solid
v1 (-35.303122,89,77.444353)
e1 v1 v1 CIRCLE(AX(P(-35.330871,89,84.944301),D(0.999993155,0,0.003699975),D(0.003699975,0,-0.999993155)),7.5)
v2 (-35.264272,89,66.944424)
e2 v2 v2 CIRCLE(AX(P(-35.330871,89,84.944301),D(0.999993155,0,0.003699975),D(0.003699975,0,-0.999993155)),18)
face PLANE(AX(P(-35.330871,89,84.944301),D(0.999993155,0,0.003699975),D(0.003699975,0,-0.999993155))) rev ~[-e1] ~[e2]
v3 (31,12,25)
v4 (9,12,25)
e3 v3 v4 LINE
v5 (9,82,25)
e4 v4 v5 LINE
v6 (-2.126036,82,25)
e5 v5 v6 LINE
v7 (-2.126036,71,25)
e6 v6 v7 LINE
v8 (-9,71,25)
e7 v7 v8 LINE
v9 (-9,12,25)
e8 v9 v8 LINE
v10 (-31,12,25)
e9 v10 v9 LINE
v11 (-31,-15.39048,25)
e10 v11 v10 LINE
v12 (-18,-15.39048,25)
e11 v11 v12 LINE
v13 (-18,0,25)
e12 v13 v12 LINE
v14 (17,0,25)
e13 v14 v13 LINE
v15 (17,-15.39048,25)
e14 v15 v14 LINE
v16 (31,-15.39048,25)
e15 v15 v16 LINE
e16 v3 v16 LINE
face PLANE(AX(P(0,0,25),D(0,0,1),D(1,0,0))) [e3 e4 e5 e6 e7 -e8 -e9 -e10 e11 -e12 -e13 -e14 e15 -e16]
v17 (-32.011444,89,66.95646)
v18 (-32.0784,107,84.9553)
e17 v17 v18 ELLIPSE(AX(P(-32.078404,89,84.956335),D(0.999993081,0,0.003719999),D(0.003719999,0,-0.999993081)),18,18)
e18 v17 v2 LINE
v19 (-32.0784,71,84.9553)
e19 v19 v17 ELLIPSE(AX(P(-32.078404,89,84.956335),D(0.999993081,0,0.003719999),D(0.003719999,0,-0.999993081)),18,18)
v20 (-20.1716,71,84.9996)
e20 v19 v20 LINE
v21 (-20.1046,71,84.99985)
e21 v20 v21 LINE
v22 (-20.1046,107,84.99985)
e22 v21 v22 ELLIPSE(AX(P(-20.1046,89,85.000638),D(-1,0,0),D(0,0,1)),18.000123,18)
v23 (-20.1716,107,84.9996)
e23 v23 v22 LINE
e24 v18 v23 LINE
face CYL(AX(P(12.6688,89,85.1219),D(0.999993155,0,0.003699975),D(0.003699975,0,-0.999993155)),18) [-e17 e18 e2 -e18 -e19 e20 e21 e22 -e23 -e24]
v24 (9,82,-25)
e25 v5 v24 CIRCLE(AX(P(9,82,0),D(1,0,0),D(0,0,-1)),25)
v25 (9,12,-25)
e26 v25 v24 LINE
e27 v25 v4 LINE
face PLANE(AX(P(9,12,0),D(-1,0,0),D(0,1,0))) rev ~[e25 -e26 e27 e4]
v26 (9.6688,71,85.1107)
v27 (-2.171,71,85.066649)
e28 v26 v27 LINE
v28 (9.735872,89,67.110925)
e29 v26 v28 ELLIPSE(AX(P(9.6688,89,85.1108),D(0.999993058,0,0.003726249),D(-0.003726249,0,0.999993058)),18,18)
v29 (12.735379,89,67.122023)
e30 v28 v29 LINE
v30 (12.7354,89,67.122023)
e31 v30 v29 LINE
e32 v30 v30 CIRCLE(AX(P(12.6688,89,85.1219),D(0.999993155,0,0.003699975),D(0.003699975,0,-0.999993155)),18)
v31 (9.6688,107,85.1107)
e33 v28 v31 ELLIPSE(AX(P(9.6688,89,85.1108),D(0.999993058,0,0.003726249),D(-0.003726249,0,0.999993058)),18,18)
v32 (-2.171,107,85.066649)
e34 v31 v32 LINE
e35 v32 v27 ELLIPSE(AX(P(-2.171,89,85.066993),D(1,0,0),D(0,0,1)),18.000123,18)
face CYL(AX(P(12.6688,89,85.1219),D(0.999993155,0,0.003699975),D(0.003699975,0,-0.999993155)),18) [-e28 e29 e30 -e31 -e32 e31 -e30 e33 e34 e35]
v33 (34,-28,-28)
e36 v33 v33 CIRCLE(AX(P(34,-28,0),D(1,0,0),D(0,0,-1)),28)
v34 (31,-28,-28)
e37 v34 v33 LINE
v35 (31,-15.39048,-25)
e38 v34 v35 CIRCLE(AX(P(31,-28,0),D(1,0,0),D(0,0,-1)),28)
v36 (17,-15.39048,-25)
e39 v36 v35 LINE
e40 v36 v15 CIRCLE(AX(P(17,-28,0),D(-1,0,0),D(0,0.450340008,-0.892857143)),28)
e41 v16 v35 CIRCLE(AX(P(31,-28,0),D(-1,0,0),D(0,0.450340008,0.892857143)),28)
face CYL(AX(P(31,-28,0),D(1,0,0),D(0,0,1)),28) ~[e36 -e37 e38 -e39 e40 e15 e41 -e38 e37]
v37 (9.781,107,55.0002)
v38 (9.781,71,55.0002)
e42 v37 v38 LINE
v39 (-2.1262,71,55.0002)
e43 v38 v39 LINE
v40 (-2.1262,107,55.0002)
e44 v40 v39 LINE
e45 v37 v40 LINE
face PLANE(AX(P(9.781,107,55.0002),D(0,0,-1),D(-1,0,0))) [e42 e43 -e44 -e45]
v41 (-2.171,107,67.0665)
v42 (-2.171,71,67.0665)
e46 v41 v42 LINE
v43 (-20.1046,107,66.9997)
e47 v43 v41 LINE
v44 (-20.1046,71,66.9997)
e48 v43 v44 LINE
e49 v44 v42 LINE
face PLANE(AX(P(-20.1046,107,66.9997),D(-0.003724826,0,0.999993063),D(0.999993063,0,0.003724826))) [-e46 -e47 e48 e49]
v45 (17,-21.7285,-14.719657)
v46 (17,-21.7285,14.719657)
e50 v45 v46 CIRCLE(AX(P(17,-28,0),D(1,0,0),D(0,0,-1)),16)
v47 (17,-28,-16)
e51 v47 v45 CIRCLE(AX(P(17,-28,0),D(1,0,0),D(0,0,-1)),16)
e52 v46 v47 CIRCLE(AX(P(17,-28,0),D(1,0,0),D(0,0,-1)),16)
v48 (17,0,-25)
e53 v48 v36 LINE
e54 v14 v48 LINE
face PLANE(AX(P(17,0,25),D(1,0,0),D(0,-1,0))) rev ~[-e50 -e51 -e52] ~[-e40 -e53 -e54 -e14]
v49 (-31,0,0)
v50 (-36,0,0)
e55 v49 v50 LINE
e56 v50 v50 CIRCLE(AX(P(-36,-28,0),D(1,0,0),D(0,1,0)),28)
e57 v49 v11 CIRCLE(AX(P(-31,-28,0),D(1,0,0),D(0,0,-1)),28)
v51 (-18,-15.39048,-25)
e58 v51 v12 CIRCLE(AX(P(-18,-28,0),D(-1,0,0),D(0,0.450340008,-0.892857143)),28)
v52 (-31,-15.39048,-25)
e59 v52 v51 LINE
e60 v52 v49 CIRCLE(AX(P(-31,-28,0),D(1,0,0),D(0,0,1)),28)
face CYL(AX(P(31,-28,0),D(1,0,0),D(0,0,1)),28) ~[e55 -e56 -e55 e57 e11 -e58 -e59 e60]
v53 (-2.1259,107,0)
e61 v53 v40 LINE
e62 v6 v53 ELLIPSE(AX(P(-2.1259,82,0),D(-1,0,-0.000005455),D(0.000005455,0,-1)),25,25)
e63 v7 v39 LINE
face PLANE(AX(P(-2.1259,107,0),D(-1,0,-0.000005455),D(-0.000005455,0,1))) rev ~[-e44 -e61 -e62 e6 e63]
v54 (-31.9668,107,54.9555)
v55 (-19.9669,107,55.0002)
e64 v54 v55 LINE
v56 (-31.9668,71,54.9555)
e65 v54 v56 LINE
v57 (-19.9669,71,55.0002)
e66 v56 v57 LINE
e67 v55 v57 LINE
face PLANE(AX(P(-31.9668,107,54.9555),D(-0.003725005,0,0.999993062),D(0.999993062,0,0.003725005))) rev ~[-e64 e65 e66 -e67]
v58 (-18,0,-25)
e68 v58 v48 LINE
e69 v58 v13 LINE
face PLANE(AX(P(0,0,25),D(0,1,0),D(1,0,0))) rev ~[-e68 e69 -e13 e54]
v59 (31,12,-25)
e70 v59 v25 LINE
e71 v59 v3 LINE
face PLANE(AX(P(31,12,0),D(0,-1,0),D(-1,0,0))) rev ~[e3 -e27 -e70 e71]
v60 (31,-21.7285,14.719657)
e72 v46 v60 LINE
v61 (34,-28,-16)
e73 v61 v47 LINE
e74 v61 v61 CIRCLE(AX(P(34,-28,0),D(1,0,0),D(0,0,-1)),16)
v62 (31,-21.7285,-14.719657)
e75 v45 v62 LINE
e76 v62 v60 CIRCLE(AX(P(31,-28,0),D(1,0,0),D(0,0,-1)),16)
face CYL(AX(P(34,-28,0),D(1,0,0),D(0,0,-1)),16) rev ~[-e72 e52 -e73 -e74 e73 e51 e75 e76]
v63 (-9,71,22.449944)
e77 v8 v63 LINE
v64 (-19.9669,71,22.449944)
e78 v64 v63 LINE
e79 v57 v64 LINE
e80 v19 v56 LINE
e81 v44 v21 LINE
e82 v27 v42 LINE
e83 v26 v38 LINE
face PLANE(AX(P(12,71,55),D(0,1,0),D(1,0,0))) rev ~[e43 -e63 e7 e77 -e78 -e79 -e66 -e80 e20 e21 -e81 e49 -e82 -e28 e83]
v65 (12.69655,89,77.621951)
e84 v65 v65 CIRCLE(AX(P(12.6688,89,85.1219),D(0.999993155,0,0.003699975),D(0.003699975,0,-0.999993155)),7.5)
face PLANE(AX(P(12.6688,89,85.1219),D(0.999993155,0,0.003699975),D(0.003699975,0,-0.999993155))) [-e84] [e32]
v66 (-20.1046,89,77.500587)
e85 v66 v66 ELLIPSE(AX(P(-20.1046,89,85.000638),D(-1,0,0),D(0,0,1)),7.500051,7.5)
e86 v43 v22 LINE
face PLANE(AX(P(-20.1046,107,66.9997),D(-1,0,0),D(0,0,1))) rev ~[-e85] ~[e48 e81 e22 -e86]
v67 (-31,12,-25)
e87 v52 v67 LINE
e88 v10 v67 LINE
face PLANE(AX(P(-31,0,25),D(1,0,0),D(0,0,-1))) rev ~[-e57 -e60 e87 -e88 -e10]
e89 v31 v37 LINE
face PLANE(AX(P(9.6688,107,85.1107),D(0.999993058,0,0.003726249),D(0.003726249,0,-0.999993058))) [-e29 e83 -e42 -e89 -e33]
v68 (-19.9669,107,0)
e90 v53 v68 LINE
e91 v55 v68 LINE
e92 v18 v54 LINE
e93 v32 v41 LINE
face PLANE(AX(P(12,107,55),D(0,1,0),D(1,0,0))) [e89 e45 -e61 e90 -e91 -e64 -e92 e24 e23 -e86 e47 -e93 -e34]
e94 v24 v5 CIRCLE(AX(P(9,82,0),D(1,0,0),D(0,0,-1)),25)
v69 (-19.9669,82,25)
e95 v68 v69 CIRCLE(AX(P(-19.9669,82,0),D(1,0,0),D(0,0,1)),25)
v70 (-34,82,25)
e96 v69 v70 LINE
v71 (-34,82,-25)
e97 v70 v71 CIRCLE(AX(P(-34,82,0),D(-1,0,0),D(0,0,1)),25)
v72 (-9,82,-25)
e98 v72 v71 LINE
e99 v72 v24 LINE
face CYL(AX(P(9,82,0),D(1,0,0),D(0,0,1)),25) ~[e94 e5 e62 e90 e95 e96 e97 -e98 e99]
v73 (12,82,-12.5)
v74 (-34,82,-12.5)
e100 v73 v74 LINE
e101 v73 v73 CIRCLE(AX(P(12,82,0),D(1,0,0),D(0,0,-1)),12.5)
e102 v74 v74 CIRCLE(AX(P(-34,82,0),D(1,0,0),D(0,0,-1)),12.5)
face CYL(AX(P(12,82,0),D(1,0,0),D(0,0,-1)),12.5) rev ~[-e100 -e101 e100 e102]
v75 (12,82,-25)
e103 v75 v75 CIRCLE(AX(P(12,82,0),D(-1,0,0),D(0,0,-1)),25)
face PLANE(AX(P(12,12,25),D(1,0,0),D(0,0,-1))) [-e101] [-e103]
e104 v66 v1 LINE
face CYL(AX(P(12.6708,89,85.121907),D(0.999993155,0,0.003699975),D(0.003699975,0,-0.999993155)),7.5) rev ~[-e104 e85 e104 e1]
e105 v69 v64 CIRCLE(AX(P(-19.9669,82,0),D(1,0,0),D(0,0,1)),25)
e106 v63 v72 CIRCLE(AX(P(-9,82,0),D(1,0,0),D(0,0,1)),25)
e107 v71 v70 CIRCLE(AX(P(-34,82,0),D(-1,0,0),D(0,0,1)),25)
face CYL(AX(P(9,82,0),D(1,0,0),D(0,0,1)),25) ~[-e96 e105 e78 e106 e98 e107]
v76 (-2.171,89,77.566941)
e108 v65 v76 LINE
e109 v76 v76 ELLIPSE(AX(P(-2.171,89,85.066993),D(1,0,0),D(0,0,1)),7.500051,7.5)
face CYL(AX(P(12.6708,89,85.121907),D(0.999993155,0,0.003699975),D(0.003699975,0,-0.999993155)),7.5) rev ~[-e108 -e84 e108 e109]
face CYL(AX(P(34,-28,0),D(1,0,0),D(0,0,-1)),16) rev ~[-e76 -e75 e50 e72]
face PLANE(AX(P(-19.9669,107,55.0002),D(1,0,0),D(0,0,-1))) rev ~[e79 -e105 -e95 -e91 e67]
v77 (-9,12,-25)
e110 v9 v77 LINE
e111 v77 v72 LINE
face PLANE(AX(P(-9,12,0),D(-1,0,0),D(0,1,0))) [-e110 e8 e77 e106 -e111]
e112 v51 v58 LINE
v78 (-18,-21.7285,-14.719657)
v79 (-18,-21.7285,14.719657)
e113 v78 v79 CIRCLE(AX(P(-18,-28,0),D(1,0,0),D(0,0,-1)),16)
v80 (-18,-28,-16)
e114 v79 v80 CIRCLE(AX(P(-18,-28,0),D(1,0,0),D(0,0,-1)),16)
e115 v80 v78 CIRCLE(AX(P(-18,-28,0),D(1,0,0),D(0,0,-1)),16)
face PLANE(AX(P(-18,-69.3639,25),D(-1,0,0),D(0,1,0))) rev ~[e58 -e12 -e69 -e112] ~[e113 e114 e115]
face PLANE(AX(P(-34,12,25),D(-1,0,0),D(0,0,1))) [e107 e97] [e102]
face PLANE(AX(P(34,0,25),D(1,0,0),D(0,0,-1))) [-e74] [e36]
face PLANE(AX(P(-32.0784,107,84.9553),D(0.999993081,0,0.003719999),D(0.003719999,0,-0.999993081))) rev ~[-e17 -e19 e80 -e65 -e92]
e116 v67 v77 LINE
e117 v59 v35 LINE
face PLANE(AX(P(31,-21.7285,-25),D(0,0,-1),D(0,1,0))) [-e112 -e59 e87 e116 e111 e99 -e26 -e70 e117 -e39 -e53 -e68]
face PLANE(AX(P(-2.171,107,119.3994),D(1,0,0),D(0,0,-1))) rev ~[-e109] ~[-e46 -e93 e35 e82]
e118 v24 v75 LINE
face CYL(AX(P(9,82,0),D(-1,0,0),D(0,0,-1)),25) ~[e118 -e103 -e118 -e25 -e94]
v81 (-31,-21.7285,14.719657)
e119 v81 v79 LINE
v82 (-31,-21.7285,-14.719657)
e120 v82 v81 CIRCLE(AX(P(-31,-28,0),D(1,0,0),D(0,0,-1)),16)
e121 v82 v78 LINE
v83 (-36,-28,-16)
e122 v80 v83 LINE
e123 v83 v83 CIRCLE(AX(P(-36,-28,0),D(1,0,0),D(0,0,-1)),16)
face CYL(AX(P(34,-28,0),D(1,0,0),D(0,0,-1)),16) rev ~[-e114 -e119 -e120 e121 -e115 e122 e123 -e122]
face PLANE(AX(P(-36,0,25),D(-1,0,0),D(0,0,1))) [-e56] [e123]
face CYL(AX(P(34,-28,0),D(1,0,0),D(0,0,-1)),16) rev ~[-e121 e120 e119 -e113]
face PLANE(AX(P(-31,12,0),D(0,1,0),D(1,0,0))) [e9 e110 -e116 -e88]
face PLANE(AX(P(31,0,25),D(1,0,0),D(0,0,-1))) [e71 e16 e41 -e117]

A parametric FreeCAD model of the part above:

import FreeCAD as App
import Part
import Sketcher
Q = App.Units.Quantity


def add_polygon(sketch, points):
    """Adds a closed chain of lines whose ends are joined by coincident constraints."""
    first, n = sketch.GeometryCount, len(points)
    for a, b in zip(points, points[1:] + points[:1]):
        sketch.addGeometry(Part.LineSegment(App.Vector(*a, 0), App.Vector(*b, 0)), False)
    for i in range(n):
        sketch.addConstraint(Sketcher.Constraint("Coincident", first + i, 2, first + (i + 1) % n, 1))

doc = App.newDocument("Part")
body = doc.addObject("PartDesign::Body", "Body")
body.AllowCompound = True

# Sketch on XY plane
sketch1 = body.newObject("Sketcher::SketchObject", "Sketch")
sketch1.AttachmentSupport = (doc.getObject("XY_Plane"), [""])
sketch1.MapMode = "FlatFace"
add_polygon(sketch1, [(-31, 0), (31, 0), (31, 12), (9, 12), (9, 82), (-9, 82), (-9, 12), (-31, 12)])  # lines 0-7
sketch1.addConstraint([
    Sketcher.Constraint("Horizontal", 0),
    Sketcher.Constraint("Vertical", 1),
    Sketcher.Constraint("Horizontal", 2),
    Sketcher.Constraint("Vertical", 3),
    Sketcher.Constraint("Horizontal", 4),
    Sketcher.Constraint("Vertical", 5),
    Sketcher.Constraint("Horizontal", 6),
    Sketcher.Constraint("Vertical", 7),
    Sketcher.Constraint("Symmetric", 0, 2, 7, 2, -1, 1),
    Sketcher.Constraint("Symmetric", 2, 2, 5, 2, -2),
    Sketcher.Constraint("DistanceX", 2, 2, 2, 1, Q("22 mm")),
    Sketcher.Constraint("DistanceX", 4, 2, 4, 1, Q("18 mm")),
    Sketcher.Constraint("DistanceY", 1, 1, 1, 2, Q("12 mm")),
    Sketcher.Constraint("DistanceY", 3, 1, 3, 2, Q("70 mm")),
])
pad1 = body.newObject("PartDesign::Pad", "Pad")
pad1.Profile = sketch1
pad1.Length = 50
pad1.Midplane = True

# Sketch on YZ plane
sketch2 = body.newObject("Sketcher::SketchObject", "Sketch001")
sketch2.AttachmentSupport = (doc.getObject("YZ_Plane"), [""])
sketch2.MapMode = "FlatFace"
sketch2.AttachmentOffset = App.Placement(App.Vector(0, 0, 31), App.Rotation())
sketch2.addGeometry(Part.Circle(App.Vector(-28, 0, 0), App.Vector(0, 0, 1), 28), False)
sketch2.addConstraint([
    Sketcher.Constraint("PointOnObject", 0, 3, -1),
    Sketcher.Constraint("Diameter", 0, Q("56 mm")),
    Sketcher.Constraint("DistanceX", 0, 3, -1, 1, Q("28 mm")),
])
pad2 = body.newObject("PartDesign::Pad", "Pad001")
pad2.Profile = sketch2
pad2.Length = 3

# Sketch on YZ plane
sketch3 = body.newObject("Sketcher::SketchObject", "Sketch002")
sketch3.AttachmentSupport = (doc.getObject("YZ_Plane"), [""])
sketch3.MapMode = "FlatFace"
sketch3.AttachmentOffset = App.Placement(App.Vector(0, 0, 31), App.Rotation())
sketch3.addGeometry(Part.Circle(App.Vector(-28, 0, 0), App.Vector(0, 0, 1), 28), False)
sketch3.addConstraint([
    Sketcher.Constraint("PointOnObject", 0, 3, -1),
    Sketcher.Constraint("Diameter", 0, Q("56 mm")),
    Sketcher.Constraint("DistanceX", 0, 3, -1, 1, Q("28 mm")),
])
pad3 = body.newObject("PartDesign::Pad", "Pad002")
pad3.Profile = sketch3
pad3.Length = 67
pad3.Reversed = True

# Sketch on YZ plane
sketch4 = body.newObject("Sketcher::SketchObject", "Sketch003")
sketch4.AttachmentSupport = (doc.getObject("YZ_Plane"), [""])
sketch4.MapMode = "FlatFace"
sketch4.AttachmentOffset = App.Placement(App.Vector(0, 0, 9), App.Rotation())
sketch4.addGeometry(Part.Circle(App.Vector(82, 0, 0), App.Vector(0, 0, 1), 25), False)
sketch4.addConstraint([
    Sketcher.Constraint("PointOnObject", 0, 3, -1),
    Sketcher.Constraint("Diameter", 0, Q("50 mm")),
    Sketcher.Constraint("DistanceX", -1, 1, 0, 3, Q("82 mm")),
])
pad4 = body.newObject("PartDesign::Pad", "Pad003")
pad4.Profile = sketch4
pad4.Length = 3

# Sketch on YZ plane
sketch5 = body.newObject("Sketcher::SketchObject", "Sketch004")
sketch5.AttachmentSupport = (doc.getObject("YZ_Plane"), [""])
sketch5.MapMode = "FlatFace"
sketch5.AttachmentOffset = App.Placement(App.Vector(0, 0, 9), App.Rotation())
sketch5.addGeometry(Part.Circle(App.Vector(82, 0, 0), App.Vector(0, 0, 1), 25), False)
sketch5.addConstraint([
    Sketcher.Constraint("PointOnObject", 0, 3, -1),
    Sketcher.Constraint("Diameter", 0, Q("50 mm")),
    Sketcher.Constraint("DistanceX", -1, 1, 0, 3, Q("82 mm")),
])
pad5 = body.newObject("PartDesign::Pad", "Pad004")
pad5.Profile = sketch5
pad5.Length = 43
pad5.Reversed = True

# Sketch on XZ plane
sketch6 = body.newObject("Sketcher::SketchObject", "Sketch005")
sketch6.AttachmentSupport = (doc.getObject("XZ_Plane"), [""])
sketch6.MapMode = "FlatFace"
sketch6.AttachmentOffset = App.Placement(App.Vector(0, 0, -107), App.Rotation())
add_polygon(sketch6, [(-2, 85), (10, 85), (10, 55), (-2, 55), (-2, 0), (-20, 0), (-20, 55), (-32, 55), (-32, 85), (-20, 85)])  # lines 0-9
sketch6.addConstraint([
    Sketcher.Constraint("Horizontal", 2),
    Sketcher.Constraint("Horizontal", 4),
    Sketcher.Constraint("Vertical", 5),
    Sketcher.Constraint("PointOnObject", 3, 2, -1),
    Sketcher.Constraint("Perpendicular", 0, 1),
    Sketcher.Constraint("Perpendicular", 1, 6),
    Sketcher.Constraint("Perpendicular", 6, 7),
    Sketcher.Constraint("Perpendicular", 7, 8),
    Sketcher.Constraint("Parallel", 8, 9),
    Sketcher.Constraint("Horizontal", 2, 2, 5, 2),
    Sketcher.Constraint("Equal", 0, 8),
    Sketcher.Constraint("Angle", 3, Q("-89.9997 deg")),
    Sketcher.Constraint("Distance", 6, Q("12 mm")),
    Sketcher.Constraint("Distance", 7, Q("30 mm")),
    Sketcher.Constraint("DistanceX", 4, 2, 4, 1, Q("17.841 mm")),
    Sketcher.Constraint("Distance", 0, Q("11.907 mm")),
    Sketcher.Constraint("DistanceX", 2, 2, 2, 1, Q("11.9072 mm")),
    Sketcher.Constraint("DistanceY", 5, 1, 5, 2, Q("55.0002 mm")),
    Sketcher.Constraint("DistanceX", -1, 1, 1, 2, Q("9.781 mm")),
    Sketcher.Constraint("DistanceX", 9, 2, -1, 1, Q("2.238 mm")),
])
pad6 = body.newObject("PartDesign::Pad", "Pad005")
pad6.Profile = sketch6
pad6.Length = 36

# Sketch on an angled plane
sketch7 = body.newObject("Sketcher::SketchObject", "Sketch006")
sketch7.Placement = App.Placement(App.Vector(9.6688, 71, 85.1107), App.Rotation(App.Vector(0.003699975, 0, -0.999993155), App.Vector(0, 1, 0), App.Vector(0.999993155, 0, 0.003699975), "ZXY"))
sketch7.addGeometry(Part.Circle(App.Vector(0, 18, 0), App.Vector(0, 0, 1), 18), False)
sketch7.addConstraint([
    Sketcher.Constraint("PointOnObject", 0, 3, -2),
    Sketcher.Constraint("Diameter", 0, Q("36 mm")),
    Sketcher.Constraint("DistanceY", -1, 1, 0, 3, Q("18 mm")),
])
pad7 = body.newObject("PartDesign::Pad", "Pad006")
pad7.Profile = sketch7
pad7.Length = 3

# Sketch on an angled plane
sketch8 = body.newObject("Sketcher::SketchObject", "Sketch007")
sketch8.Placement = App.Placement(App.Vector(12.6688, 89, 85.1219), App.Rotation(App.Vector(0.003699975, 0, -0.999993155), App.Vector(0, 1, 0), App.Vector(0.999993155, 0, 0.003699975), "ZXY"))
sketch8.addGeometry(Part.Circle(App.Vector(0, 0, 0), App.Vector(0, 0, 1), 18), False)
sketch8.addConstraint([
    Sketcher.Constraint("Coincident", 0, 3, -1, 1),
    Sketcher.Constraint("Diameter", 0, Q("36 mm")),
])
pad8 = body.newObject("PartDesign::Pad", "Pad007")
pad8.Profile = sketch8
pad8.Length = 48
pad8.Reversed = True

# Sketch on XZ plane
sketch9 = body.newObject("Sketcher::SketchObject", "Sketch008")
sketch9.AttachmentSupport = (doc.getObject("XZ_Plane"), [""])
sketch9.MapMode = "FlatFace"
sketch9.AttachmentOffset = App.Placement(App.Vector(0, 0, -107), App.Rotation())
add_polygon(sketch9, [(-2, 67), (-20, 67), (-20, 119), (-2, 119)])  # lines 0-3
sketch9.addConstraint([
    Sketcher.Constraint("Vertical", 1),
    Sketcher.Constraint("Horizontal", 2),
    Sketcher.Constraint("Vertical", 3),
    Sketcher.Constraint("DistanceY", 3, 2, 3, 1, Q("52.333 mm")),
    Sketcher.Constraint("DistanceX", 2, 1, 2, 2, Q("17.9336 mm")),
    Sketcher.Constraint("DistanceY", 1, 1, 1, 2, Q("52.3997 mm")),
    Sketcher.Constraint("DistanceX", 2, 2, -1, 1, Q("2.171 mm")),
    Sketcher.Constraint("DistanceY", -1, 1, 0, 2, Q("66.9997 mm")),
])
pocket1 = body.newObject("PartDesign::Pocket", "Pocket")
pocket1.Profile = sketch9
pocket1.Length = 48
pocket1.Reversed = True

# Sketch on an angled plane
sketch10 = body.newObject("Sketcher::SketchObject", "Sketch009")
sketch10.Placement = App.Placement(App.Vector(12.6688, 89, 85.1219), App.Rotation(App.Vector(0.003699975, 0, -0.999993155), App.Vector(0, 1, 0), App.Vector(0.999993155, 0, 0.003699975), "ZXY"))
sketch10.addGeometry(Part.Circle(App.Vector(0, 0, 0), App.Vector(0, 0, 1), 8), False)
sketch10.addConstraint([
    Sketcher.Constraint("Coincident", 0, 3, -1, 1),
    Sketcher.Constraint("Diameter", 0, Q("15 mm")),
])
pocket2 = body.newObject("PartDesign::Pocket", "Pocket001")
pocket2.Profile = sketch10
pocket2.Length = 70

# Sketch on YZ plane
sketch11 = body.newObject("Sketcher::SketchObject", "Sketch010")
sketch11.AttachmentSupport = (doc.getObject("YZ_Plane"), [""])
sketch11.MapMode = "FlatFace"
sketch11.AttachmentOffset = App.Placement(App.Vector(0, 0, 12), App.Rotation())
sketch11.addGeometry(Part.Circle(App.Vector(82, 0, 0), App.Vector(0, 0, 1), 12), False)
sketch11.addConstraint([
    Sketcher.Constraint("PointOnObject", 0, 3, -1),
    Sketcher.Constraint("Diameter", 0, Q("25 mm")),
    Sketcher.Constraint("DistanceX", -1, 1, 0, 3, Q("82 mm")),
])
pocket3 = body.newObject("PartDesign::Pocket", "Pocket002")
pocket3.Profile = sketch11
pocket3.Length = 70

# Sketch on YZ plane
sketch12 = body.newObject("Sketcher::SketchObject", "Sketch011")
sketch12.AttachmentSupport = (doc.getObject("YZ_Plane"), [""])
sketch12.MapMode = "FlatFace"
sketch12.AttachmentOffset = App.Placement(App.Vector(0, 0, 34), App.Rotation())
sketch12.addGeometry(Part.Circle(App.Vector(-28, 0, 0), App.Vector(0, 0, 1), 16), False)
sketch12.addConstraint([
    Sketcher.Constraint("PointOnObject", 0, 3, -1),
    Sketcher.Constraint("Diameter", 0, Q("32 mm")),
    Sketcher.Constraint("DistanceX", 0, 3, -1, 1, Q("28 mm")),
])
pocket4 = body.newObject("PartDesign::Pocket", "Pocket003")
pocket4.Profile = sketch12
pocket4.Length = 70

# Sketch on YZ plane
sketch13 = body.newObject("Sketcher::SketchObject", "Sketch012")
sketch13.AttachmentSupport = (doc.getObject("YZ_Plane"), [""])
sketch13.MapMode = "FlatFace"
sketch13.AttachmentOffset = App.Placement(App.Vector(0, 0, 31), App.Rotation())
add_polygon(sketch13, [(-22, -25), (12, -25), (12, 25), (-22, 25)])  # lines 0-3
sketch13.addConstraint([
    Sketcher.Constraint("Horizontal", 0),
    Sketcher.Constraint("Vertical", 1),
    Sketcher.Constraint("Horizontal", 2),
    Sketcher.Constraint("Vertical", 3),
    Sketcher.Constraint("DistanceY", 1, 1, 1, 2, Q("50 mm")),
    Sketcher.Constraint("DistanceX", -1, 1, 0, 2, Q("12 mm")),
    Sketcher.Constraint("DistanceY", 0, 2, -1, 1, Q("25 mm")),
    Sketcher.Constraint("DistanceX", 0, 1, 0, 2, Q("33.7285 mm")),
])
pad9 = body.newObject("PartDesign::Pad", "Pad008")
pad9.Profile = sketch13
pad9.Length = 62
pad9.Reversed = True

# Sketch on YZ plane
sketch14 = body.newObject("Sketcher::SketchObject", "Sketch013")
sketch14.AttachmentSupport = (doc.getObject("YZ_Plane"), [""])
sketch14.MapMode = "FlatFace"
sketch14.AttachmentOffset = App.Placement(App.Vector(0, 0, 34), App.Rotation())
sketch14.addGeometry(Part.Circle(App.Vector(-28, 0, 0), App.Vector(0, 0, 1), 16), False)
sketch14.addConstraint([
    Sketcher.Constraint("PointOnObject", 0, 3, -1),
    Sketcher.Constraint("Diameter", 0, Q("32 mm")),
    Sketcher.Constraint("DistanceX", 0, 3, -1, 1, Q("28 mm")),
])
pocket5 = body.newObject("PartDesign::Pocket", "Pocket004")
pocket5.Profile = sketch14
pocket5.Length = 70

# Sketch on XY plane
sketch15 = body.newObject("Sketcher::SketchObject", "Sketch014")
sketch15.AttachmentSupport = (doc.getObject("XY_Plane"), [""])
sketch15.MapMode = "FlatFace"
sketch15.AttachmentOffset = App.Placement(App.Vector(0, 0, 25), App.Rotation())
add_polygon(sketch15, [(17, 0), (-18, 0), (-18, -69), (17, -69)])  # lines 0-3
sketch15.addConstraint([
    Sketcher.Constraint("Horizontal", 0),
    Sketcher.Constraint("Vertical", 1),
    Sketcher.Constraint("Horizontal", 2),
    Sketcher.Constraint("Vertical", 3),
    Sketcher.Constraint("PointOnObject", 0, 2, -1),
    Sketcher.Constraint("DistanceX", -1, 1, 2, 2, Q("17 mm")),
    Sketcher.Constraint("DistanceX", 0, 2, 0, 1, Q("35 mm")),
    Sketcher.Constraint("DistanceY", 1, 2, 1, 1, Q("69.364 mm")),
])
pocket6 = body.newObject("PartDesign::Pocket", "Pocket005")
pocket6.Profile = sketch15
pocket6.Length = 150
pocket6.Midplane = True

doc.recompute()
